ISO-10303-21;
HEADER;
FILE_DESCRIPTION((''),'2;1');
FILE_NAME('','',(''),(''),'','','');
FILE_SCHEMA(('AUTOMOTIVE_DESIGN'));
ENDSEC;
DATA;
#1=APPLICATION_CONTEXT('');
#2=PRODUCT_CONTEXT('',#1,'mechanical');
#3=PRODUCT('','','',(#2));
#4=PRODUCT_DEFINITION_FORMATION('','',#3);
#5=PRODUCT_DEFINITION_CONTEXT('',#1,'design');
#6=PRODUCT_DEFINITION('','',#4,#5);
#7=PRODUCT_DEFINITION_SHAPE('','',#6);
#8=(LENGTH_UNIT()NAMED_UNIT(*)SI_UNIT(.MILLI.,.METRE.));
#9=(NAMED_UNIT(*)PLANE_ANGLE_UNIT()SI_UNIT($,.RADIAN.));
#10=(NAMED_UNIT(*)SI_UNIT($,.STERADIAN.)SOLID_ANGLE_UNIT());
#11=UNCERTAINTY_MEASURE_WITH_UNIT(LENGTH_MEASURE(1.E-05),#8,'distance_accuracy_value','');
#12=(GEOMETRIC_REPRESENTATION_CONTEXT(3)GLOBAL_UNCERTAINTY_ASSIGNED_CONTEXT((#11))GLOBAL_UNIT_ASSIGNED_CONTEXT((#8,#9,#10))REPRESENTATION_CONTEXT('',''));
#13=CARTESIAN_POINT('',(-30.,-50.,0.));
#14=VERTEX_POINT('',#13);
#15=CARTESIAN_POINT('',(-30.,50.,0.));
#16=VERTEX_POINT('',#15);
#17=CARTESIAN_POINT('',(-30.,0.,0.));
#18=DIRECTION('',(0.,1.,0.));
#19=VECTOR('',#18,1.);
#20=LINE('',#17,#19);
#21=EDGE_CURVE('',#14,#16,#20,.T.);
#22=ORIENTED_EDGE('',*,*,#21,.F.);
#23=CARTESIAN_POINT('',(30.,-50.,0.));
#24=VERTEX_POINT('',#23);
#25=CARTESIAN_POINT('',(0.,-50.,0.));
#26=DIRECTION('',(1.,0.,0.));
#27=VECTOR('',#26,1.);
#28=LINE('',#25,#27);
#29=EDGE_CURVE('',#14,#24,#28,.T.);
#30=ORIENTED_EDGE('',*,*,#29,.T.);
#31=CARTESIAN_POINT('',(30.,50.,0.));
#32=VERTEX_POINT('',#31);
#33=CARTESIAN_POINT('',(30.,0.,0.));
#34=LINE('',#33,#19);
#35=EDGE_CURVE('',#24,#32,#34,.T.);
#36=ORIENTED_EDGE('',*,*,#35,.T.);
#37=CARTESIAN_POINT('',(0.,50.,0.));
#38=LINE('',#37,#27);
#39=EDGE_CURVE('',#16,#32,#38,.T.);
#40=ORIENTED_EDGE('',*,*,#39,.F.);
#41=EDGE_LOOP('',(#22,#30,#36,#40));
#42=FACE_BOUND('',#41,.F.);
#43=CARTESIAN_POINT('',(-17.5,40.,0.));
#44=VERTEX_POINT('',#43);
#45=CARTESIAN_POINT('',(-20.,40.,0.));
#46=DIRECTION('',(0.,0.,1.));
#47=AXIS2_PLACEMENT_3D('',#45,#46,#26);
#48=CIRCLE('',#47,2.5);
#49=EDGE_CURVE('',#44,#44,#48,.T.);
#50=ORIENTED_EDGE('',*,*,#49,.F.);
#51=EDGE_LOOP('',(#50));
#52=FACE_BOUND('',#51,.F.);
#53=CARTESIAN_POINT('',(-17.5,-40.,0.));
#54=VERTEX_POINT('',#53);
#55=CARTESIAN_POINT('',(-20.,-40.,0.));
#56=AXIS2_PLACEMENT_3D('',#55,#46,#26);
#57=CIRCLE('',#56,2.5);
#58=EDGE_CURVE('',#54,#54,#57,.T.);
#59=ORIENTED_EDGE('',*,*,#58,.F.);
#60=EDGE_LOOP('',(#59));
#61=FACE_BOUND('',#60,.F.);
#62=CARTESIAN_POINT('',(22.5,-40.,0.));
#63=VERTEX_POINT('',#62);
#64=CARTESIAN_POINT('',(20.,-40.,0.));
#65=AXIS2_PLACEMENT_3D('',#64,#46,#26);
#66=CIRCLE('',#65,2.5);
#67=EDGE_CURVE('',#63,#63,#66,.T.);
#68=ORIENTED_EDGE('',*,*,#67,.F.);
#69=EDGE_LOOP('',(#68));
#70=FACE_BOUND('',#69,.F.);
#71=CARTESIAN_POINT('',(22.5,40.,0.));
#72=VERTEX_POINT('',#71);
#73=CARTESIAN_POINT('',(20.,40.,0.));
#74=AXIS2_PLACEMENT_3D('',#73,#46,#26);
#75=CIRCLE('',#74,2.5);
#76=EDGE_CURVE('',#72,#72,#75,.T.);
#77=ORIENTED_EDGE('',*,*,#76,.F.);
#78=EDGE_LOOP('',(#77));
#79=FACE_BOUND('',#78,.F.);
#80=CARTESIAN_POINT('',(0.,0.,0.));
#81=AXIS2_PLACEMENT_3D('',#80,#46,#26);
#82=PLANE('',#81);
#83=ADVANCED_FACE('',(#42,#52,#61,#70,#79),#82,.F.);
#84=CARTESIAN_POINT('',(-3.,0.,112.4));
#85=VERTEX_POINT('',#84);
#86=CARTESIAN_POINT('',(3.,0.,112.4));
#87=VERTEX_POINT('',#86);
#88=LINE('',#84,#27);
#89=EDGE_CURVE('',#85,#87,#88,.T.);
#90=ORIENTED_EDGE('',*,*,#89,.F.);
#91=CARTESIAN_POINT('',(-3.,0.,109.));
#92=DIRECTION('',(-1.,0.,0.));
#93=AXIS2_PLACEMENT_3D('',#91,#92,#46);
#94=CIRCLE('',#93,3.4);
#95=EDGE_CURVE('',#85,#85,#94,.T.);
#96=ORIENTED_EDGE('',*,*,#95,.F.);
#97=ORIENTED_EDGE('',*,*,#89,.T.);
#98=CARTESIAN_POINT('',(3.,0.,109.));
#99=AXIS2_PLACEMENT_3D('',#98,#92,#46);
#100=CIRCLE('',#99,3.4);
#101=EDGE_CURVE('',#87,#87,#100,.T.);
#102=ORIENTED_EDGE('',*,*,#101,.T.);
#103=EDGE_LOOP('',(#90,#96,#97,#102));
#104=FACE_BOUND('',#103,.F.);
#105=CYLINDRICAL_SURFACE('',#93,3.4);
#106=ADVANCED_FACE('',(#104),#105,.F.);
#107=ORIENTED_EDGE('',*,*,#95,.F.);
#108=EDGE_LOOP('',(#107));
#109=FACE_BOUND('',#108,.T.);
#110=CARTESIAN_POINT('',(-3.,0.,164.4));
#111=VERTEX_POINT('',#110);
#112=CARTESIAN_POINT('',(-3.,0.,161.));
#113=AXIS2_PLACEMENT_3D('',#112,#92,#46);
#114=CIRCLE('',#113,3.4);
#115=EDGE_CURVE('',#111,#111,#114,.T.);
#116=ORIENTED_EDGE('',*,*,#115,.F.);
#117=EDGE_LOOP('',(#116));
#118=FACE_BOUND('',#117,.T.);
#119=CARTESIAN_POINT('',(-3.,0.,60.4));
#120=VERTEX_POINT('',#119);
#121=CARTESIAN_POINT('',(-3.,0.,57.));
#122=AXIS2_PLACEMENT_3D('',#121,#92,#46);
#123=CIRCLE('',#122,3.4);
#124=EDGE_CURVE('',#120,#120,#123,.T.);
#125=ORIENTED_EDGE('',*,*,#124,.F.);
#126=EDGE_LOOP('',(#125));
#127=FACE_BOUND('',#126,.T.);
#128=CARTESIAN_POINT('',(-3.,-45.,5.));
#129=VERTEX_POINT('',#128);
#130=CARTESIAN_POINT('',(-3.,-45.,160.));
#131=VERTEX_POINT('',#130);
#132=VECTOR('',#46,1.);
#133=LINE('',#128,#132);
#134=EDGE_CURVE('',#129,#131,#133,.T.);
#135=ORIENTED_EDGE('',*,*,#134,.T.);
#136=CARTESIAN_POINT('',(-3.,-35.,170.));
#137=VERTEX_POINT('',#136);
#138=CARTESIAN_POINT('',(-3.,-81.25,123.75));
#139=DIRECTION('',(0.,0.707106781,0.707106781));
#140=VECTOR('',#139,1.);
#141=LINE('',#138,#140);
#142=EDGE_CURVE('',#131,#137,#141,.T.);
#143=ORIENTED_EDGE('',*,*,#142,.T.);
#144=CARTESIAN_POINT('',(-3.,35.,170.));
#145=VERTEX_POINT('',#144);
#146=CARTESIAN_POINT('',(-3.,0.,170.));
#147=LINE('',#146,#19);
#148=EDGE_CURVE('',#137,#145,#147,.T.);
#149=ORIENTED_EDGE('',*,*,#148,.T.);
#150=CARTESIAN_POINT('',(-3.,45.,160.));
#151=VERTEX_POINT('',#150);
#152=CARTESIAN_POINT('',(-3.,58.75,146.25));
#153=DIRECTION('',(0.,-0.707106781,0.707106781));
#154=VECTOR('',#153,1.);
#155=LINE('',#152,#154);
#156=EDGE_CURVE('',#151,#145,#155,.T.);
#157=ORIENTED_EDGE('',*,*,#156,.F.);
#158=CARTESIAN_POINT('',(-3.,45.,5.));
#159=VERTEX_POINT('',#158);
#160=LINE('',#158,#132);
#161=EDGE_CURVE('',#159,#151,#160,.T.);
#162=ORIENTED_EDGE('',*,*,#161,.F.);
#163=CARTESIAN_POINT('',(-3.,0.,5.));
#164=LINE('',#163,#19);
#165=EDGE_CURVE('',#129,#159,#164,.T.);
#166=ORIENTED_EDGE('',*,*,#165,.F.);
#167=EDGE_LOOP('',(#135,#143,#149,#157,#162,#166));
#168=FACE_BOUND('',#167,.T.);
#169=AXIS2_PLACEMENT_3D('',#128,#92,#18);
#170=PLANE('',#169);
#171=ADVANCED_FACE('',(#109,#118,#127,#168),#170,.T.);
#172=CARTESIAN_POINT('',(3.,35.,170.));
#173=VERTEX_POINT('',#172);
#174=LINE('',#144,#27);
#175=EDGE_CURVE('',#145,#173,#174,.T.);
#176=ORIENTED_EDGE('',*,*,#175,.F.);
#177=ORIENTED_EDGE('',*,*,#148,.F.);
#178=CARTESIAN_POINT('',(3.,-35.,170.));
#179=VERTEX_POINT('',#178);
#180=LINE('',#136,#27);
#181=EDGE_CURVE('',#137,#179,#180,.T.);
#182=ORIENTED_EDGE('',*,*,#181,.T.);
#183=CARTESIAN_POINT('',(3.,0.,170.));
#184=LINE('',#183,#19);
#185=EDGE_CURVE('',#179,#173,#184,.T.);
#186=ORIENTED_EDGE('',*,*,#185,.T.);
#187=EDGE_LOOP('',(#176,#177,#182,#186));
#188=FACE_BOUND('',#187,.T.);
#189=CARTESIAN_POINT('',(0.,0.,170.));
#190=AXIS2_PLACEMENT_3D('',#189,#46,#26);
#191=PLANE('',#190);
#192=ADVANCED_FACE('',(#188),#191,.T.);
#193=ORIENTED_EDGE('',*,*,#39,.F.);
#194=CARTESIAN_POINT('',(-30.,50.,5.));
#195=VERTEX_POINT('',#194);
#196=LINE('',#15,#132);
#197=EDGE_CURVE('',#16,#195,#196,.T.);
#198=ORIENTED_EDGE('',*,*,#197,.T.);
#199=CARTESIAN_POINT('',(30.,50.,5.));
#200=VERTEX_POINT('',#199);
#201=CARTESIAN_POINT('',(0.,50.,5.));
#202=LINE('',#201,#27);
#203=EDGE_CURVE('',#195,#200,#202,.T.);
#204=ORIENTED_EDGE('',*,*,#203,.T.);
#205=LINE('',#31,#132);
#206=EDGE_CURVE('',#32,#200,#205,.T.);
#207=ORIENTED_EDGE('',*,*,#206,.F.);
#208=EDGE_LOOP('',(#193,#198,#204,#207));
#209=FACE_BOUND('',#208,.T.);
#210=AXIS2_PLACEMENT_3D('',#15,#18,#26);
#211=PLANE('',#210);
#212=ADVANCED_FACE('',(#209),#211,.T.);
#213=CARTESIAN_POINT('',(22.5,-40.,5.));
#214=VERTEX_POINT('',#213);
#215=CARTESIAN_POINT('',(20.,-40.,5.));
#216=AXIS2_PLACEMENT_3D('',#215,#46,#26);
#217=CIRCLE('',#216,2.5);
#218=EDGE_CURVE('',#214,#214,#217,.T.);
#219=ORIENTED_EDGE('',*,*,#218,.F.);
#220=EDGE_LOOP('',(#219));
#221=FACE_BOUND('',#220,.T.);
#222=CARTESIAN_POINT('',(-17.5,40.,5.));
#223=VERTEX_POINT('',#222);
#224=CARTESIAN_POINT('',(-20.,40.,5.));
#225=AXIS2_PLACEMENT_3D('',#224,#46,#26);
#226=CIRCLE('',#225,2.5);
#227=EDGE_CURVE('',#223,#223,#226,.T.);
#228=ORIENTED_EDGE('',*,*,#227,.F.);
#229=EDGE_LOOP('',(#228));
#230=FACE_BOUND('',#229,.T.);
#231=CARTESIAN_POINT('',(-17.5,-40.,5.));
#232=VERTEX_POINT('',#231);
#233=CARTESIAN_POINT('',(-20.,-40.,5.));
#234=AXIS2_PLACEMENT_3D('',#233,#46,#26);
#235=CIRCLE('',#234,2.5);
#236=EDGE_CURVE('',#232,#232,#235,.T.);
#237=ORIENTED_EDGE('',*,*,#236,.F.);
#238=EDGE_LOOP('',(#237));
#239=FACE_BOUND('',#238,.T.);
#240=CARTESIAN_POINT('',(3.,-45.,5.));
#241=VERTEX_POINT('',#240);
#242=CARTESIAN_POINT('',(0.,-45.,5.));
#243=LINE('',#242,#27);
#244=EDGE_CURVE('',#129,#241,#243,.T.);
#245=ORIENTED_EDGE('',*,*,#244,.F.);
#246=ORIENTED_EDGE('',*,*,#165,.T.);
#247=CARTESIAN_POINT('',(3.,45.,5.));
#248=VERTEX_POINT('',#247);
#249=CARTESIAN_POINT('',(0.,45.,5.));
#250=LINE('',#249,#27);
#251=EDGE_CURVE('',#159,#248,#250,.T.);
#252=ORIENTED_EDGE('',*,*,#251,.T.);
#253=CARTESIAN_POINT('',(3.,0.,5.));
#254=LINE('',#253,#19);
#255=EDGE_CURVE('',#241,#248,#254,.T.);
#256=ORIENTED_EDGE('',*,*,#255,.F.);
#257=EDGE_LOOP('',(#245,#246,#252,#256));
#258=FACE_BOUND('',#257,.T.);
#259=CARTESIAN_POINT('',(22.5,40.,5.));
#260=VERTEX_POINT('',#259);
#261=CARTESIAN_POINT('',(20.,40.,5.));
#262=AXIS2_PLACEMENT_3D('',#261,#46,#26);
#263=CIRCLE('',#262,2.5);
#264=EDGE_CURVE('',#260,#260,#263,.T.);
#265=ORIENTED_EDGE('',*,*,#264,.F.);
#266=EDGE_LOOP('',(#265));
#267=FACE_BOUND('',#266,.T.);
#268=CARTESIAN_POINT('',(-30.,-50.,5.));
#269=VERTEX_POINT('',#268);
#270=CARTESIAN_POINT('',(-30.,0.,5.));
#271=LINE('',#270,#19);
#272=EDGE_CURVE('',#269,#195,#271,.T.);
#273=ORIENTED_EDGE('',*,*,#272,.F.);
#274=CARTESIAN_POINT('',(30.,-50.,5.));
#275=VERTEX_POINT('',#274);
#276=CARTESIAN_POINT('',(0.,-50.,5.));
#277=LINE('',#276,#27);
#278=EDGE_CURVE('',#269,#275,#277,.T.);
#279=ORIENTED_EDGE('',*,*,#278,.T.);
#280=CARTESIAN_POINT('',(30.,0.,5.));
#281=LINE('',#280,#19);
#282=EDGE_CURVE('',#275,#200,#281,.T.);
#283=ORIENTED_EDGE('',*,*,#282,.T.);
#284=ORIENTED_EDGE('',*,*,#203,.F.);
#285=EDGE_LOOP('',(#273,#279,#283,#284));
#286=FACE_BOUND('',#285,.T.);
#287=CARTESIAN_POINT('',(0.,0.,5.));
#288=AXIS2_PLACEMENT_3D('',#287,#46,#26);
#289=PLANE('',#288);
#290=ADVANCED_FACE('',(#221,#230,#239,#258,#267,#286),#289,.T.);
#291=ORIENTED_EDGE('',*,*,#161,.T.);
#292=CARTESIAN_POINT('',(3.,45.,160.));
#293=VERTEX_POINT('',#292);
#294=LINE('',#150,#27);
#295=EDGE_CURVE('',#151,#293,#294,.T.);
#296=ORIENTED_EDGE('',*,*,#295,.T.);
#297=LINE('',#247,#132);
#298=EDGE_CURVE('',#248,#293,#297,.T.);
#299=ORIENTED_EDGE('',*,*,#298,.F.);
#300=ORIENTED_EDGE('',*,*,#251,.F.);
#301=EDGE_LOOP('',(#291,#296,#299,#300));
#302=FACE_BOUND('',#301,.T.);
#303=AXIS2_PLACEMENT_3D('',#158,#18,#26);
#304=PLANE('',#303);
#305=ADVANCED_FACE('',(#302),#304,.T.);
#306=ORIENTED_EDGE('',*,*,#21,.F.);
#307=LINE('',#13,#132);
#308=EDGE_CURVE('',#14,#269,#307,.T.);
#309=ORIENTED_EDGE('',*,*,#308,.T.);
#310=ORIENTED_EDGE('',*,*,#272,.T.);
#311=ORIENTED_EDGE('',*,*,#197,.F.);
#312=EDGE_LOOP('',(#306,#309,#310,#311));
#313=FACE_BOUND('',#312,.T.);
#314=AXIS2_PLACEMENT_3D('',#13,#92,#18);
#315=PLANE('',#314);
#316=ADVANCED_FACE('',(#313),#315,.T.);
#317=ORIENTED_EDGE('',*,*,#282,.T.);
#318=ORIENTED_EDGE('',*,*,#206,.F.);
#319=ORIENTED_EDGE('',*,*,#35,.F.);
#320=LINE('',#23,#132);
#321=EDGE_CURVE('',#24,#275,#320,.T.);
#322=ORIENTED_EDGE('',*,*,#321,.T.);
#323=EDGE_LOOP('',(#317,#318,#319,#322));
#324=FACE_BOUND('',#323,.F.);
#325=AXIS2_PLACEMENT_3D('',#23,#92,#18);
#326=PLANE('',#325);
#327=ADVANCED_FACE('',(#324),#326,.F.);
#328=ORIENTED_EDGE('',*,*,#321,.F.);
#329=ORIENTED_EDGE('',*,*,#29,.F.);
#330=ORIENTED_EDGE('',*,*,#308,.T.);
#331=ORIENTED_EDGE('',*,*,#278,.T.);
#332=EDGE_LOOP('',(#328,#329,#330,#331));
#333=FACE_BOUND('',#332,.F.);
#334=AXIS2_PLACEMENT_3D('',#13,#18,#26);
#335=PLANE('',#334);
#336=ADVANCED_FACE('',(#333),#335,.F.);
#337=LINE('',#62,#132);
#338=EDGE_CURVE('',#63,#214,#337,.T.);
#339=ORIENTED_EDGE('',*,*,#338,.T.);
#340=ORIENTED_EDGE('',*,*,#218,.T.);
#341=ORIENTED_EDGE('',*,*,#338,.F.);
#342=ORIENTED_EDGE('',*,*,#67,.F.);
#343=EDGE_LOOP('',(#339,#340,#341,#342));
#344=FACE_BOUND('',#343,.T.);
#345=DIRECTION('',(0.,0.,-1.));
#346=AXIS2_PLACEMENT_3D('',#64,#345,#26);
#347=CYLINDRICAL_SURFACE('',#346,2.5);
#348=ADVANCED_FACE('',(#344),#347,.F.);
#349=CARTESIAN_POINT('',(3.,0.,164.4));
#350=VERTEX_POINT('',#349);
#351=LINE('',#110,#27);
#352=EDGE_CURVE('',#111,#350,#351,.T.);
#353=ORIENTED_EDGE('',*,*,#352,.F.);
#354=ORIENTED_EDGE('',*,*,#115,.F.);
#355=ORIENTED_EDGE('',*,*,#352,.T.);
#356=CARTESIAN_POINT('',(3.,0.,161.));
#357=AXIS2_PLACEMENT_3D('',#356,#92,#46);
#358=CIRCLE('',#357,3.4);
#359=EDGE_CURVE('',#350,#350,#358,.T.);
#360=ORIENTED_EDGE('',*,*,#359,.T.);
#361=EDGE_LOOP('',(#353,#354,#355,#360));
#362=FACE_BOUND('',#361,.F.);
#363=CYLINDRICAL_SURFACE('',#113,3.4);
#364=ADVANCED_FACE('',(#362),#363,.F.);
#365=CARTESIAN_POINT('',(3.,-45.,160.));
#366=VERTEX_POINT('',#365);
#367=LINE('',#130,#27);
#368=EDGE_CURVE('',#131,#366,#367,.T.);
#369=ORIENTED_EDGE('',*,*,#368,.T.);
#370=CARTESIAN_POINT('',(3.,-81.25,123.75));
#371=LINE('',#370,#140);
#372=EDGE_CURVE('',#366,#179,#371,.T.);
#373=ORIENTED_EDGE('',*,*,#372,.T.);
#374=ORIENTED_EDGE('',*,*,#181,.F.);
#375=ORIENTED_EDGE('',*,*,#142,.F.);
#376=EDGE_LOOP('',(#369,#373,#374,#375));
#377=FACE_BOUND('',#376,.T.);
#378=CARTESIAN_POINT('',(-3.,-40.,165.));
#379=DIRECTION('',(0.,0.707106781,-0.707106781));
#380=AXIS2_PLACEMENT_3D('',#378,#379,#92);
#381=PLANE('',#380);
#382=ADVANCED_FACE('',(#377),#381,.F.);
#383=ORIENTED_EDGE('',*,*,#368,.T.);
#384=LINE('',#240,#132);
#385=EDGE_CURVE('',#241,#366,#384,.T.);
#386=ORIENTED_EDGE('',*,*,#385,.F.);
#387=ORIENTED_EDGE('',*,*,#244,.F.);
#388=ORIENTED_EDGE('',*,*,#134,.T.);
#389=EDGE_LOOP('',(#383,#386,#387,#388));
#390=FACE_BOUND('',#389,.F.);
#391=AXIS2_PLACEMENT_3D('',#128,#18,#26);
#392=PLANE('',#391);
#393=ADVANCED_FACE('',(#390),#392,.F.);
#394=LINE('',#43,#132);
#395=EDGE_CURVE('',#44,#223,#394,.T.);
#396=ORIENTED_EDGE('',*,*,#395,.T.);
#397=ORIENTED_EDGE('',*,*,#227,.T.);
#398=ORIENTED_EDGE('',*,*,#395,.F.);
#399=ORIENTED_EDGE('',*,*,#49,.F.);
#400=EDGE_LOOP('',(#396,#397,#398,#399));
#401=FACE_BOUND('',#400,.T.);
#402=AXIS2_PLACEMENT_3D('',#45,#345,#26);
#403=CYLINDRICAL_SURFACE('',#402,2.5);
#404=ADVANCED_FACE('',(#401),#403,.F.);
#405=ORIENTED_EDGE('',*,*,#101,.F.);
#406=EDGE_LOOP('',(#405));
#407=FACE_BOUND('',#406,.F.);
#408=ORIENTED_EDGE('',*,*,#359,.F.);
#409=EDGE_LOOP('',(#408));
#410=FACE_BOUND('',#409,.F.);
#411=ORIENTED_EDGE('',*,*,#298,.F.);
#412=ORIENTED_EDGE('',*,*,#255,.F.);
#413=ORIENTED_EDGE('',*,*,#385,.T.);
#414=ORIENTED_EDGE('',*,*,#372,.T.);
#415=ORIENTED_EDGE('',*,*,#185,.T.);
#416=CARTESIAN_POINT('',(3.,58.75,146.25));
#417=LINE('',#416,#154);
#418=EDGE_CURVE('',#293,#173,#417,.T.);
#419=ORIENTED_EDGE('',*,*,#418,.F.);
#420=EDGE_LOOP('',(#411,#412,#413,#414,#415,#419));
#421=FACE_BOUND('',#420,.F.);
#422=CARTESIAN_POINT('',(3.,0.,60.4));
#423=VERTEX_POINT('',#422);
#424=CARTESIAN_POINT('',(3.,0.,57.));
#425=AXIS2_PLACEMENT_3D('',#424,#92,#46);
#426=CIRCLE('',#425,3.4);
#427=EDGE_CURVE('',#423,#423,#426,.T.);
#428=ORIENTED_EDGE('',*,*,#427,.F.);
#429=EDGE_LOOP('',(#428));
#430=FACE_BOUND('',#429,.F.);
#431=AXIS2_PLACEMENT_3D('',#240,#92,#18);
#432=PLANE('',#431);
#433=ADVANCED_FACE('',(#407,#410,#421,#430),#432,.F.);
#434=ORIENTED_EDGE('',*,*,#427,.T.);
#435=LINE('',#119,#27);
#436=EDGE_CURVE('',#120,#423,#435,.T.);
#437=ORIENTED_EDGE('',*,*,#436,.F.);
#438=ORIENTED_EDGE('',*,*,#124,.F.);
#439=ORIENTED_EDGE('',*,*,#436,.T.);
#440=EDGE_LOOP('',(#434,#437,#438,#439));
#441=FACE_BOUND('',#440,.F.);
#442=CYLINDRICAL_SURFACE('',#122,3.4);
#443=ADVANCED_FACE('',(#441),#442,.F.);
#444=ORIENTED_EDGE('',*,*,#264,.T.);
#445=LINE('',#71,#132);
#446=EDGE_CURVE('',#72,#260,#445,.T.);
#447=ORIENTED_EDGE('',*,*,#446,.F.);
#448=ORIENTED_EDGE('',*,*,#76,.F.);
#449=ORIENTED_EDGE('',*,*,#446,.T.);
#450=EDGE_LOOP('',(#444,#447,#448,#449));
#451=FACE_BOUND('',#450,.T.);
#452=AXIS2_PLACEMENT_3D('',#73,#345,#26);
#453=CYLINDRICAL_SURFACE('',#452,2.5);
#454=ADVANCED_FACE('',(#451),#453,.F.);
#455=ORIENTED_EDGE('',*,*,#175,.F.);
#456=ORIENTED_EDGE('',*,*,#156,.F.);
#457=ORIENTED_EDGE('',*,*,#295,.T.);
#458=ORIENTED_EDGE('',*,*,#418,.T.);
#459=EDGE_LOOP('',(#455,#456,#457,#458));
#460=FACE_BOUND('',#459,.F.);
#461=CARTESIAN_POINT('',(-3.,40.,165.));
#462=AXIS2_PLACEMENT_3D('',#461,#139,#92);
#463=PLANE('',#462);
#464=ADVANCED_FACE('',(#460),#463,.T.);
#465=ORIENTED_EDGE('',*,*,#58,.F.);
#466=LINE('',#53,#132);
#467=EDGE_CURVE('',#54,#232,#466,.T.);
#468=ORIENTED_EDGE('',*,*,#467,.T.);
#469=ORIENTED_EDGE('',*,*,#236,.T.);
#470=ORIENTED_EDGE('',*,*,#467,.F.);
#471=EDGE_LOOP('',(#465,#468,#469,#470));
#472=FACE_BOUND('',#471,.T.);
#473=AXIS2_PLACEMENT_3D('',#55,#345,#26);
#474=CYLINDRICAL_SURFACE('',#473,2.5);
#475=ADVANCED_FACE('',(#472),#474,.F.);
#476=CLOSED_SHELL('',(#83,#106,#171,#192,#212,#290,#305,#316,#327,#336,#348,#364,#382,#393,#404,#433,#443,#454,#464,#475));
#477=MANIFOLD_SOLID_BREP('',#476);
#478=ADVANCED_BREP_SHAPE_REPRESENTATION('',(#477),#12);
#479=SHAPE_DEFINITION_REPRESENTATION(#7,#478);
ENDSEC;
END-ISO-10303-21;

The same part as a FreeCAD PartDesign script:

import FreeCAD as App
import Part
import Sketcher


def edges_at(feature, points):
    """Names of the edges that pass closest to the given points."""
    edges = feature.Shape.Edges
    near = lambda p: min(range(len(edges)), key=lambda i: edges[i].distToShape(Part.Vertex(*p))[0])
    return sorted({f"Edge{near(p) + 1}" for p in points})


def add_polygon(sketch, points):
    """Adds a closed chain of lines whose ends are joined by coincident constraints."""
    first, n = sketch.GeometryCount, len(points)
    for a, b in zip(points, points[1:] + points[:1]):
        sketch.addGeometry(Part.LineSegment(App.Vector(*a, 0), App.Vector(*b, 0)), False)
    for i in range(n):
        sketch.addConstraint(Sketcher.Constraint("Coincident", first + i, 2, first + (i + 1) % n, 1))

doc = App.newDocument("Part")
body = doc.addObject("PartDesign::Body", "Body")

sketch1 = doc.addObject("Sketcher::SketchObject", "Sketch")
body.addObject(sketch1)
sketch1.AttachmentSupport = (doc.XY_Plane, [""])
sketch1.MapMode = "FlatFace"
add_polygon(sketch1, [(-30, 50), (-30, -50), (30, -50), (30, 50)])
sketch1.addGeometry(Part.Circle(App.Vector(-20, -40, 0), App.Vector(0, 0, 1), 2.5), False)
sketch1.addGeometry(Part.Circle(App.Vector(20, -40, 0), App.Vector(0, 0, 1), 2.5), False)
sketch1.addGeometry(Part.Circle(App.Vector(-20, 40, 0), App.Vector(0, 0, 1), 2.5), False)
sketch1.addGeometry(Part.Circle(App.Vector(20, 40, 0), App.Vector(0, 0, 1), 2.5), False)
sketch1.addConstraint(Sketcher.Constraint("Vertical", 0))
sketch1.addConstraint(Sketcher.Constraint("Horizontal", 1))
sketch1.addConstraint(Sketcher.Constraint("Vertical", 2))
sketch1.addConstraint(Sketcher.Constraint("Horizontal", 3))
sketch1.addConstraint(Sketcher.Constraint("Equal", 4, 5))
sketch1.addConstraint(Sketcher.Constraint("Equal", 5, 6))
sketch1.addConstraint(Sketcher.Constraint("Equal", 6, 7))
sketch1.addConstraint(Sketcher.Constraint("Symmetric", 5, 3, 6, 3, -1, 1))
sketch1.addConstraint(Sketcher.Constraint("Symmetric", 4, 3, 7, 3, -1, 1))
sketch1.addConstraint(Sketcher.Constraint("Symmetric", 0, 2, 2, 2, -1, 1))
sketch1.addConstraint(Sketcher.Constraint("Symmetric", 4, 3, 5, 3, -2))
sketch1.addConstraint(Sketcher.Constraint("Diameter", 4, 5.0))
sketch1.addConstraint(Sketcher.Constraint("DistanceX", 1, 1, 1, 2, 60.0))
sketch1.addConstraint(Sketcher.Constraint("DistanceY", 0, 2, 0, 1, 100.0))
sketch1.addConstraint(Sketcher.Constraint("DistanceX", 4, 3, -1, 1, 20.0))
sketch1.addConstraint(Sketcher.Constraint("DistanceY", 4, 3, -1, 1, 40.0))
pad1 = doc.addObject("PartDesign::Pad", "Pad")
body.addObject(pad1)
pad1.Profile = sketch1
pad1.Length = 5

sketch2 = doc.addObject("Sketcher::SketchObject", "Sketch001")
body.addObject(sketch2)
sketch2.AttachmentSupport = (doc.XY_Plane, [""])
sketch2.MapMode = "FlatFace"
sketch2.AttachmentOffset = App.Placement(App.Vector(0, 0, 5), App.Rotation())
add_polygon(sketch2, [(-3, 45), (-3, -45), (3, -45), (3, 45)])
sketch2.addConstraint(Sketcher.Constraint("Vertical", 0))
sketch2.addConstraint(Sketcher.Constraint("Horizontal", 1))
sketch2.addConstraint(Sketcher.Constraint("Vertical", 2))
sketch2.addConstraint(Sketcher.Constraint("Horizontal", 3))
sketch2.addConstraint(Sketcher.Constraint("Symmetric", 0, 2, 2, 2, -1, 1))
sketch2.addConstraint(Sketcher.Constraint("DistanceX", 1, 1, 1, 2, 6.0))
sketch2.addConstraint(Sketcher.Constraint("DistanceY", 0, 2, 0, 1, 90.0))
pad2 = doc.addObject("PartDesign::Pad", "Pad001")
body.addObject(pad2)
pad2.Profile = sketch2
pad2.Length = 165
doc.recompute()

chamfer = doc.addObject("PartDesign::Chamfer", "Chamfer")
body.addObject(chamfer)
chamfer.Base = (pad2, edges_at(pad2, [(0, 45, 170), (0, -45, 170)]))
chamfer.Size = 10

sketch3 = doc.addObject("Sketcher::SketchObject", "Sketch002")
body.addObject(sketch3)
sketch3.AttachmentSupport = (doc.YZ_Plane, [""])
sketch3.MapMode = "FlatFace"
sketch3.AttachmentOffset = App.Placement(App.Vector(0, 0, -3), App.Rotation())
sketch3.addGeometry(Part.Circle(App.Vector(0, 161, 0), App.Vector(0, 0, 1), 3.4), False)
sketch3.addGeometry(Part.Circle(App.Vector(0, 109, 0), App.Vector(0, 0, 1), 3.4), False)
sketch3.addGeometry(Part.Circle(App.Vector(0, 57, 0), App.Vector(0, 0, 1), 3.4), False)
sketch3.addConstraint(Sketcher.Constraint("Equal", 0, 1))
sketch3.addConstraint(Sketcher.Constraint("Equal", 1, 2))
sketch3.addConstraint(Sketcher.Constraint("PointOnObject", 0, 3, -2))
sketch3.addConstraint(Sketcher.Constraint("PointOnObject", 1, 3, -2))
sketch3.addConstraint(Sketcher.Constraint("PointOnObject", 2, 3, -2))
sketch3.addConstraint(Sketcher.Constraint("Diameter", 0, 6.8))
sketch3.addConstraint(Sketcher.Constraint("DistanceY", -1, 1, 0, 3, 161.0))
sketch3.addConstraint(Sketcher.Constraint("DistanceY", -1, 1, 1, 3, 109.0))
sketch3.addConstraint(Sketcher.Constraint("DistanceY", -1, 1, 2, 3, 57.0))
pocket1 = doc.addObject("PartDesign::Pocket", "Pocket")
body.addObject(pocket1)
pocket1.Profile = sketch3
pocket1.Length = 165
pocket1.Reversed = True

doc.recompute()
